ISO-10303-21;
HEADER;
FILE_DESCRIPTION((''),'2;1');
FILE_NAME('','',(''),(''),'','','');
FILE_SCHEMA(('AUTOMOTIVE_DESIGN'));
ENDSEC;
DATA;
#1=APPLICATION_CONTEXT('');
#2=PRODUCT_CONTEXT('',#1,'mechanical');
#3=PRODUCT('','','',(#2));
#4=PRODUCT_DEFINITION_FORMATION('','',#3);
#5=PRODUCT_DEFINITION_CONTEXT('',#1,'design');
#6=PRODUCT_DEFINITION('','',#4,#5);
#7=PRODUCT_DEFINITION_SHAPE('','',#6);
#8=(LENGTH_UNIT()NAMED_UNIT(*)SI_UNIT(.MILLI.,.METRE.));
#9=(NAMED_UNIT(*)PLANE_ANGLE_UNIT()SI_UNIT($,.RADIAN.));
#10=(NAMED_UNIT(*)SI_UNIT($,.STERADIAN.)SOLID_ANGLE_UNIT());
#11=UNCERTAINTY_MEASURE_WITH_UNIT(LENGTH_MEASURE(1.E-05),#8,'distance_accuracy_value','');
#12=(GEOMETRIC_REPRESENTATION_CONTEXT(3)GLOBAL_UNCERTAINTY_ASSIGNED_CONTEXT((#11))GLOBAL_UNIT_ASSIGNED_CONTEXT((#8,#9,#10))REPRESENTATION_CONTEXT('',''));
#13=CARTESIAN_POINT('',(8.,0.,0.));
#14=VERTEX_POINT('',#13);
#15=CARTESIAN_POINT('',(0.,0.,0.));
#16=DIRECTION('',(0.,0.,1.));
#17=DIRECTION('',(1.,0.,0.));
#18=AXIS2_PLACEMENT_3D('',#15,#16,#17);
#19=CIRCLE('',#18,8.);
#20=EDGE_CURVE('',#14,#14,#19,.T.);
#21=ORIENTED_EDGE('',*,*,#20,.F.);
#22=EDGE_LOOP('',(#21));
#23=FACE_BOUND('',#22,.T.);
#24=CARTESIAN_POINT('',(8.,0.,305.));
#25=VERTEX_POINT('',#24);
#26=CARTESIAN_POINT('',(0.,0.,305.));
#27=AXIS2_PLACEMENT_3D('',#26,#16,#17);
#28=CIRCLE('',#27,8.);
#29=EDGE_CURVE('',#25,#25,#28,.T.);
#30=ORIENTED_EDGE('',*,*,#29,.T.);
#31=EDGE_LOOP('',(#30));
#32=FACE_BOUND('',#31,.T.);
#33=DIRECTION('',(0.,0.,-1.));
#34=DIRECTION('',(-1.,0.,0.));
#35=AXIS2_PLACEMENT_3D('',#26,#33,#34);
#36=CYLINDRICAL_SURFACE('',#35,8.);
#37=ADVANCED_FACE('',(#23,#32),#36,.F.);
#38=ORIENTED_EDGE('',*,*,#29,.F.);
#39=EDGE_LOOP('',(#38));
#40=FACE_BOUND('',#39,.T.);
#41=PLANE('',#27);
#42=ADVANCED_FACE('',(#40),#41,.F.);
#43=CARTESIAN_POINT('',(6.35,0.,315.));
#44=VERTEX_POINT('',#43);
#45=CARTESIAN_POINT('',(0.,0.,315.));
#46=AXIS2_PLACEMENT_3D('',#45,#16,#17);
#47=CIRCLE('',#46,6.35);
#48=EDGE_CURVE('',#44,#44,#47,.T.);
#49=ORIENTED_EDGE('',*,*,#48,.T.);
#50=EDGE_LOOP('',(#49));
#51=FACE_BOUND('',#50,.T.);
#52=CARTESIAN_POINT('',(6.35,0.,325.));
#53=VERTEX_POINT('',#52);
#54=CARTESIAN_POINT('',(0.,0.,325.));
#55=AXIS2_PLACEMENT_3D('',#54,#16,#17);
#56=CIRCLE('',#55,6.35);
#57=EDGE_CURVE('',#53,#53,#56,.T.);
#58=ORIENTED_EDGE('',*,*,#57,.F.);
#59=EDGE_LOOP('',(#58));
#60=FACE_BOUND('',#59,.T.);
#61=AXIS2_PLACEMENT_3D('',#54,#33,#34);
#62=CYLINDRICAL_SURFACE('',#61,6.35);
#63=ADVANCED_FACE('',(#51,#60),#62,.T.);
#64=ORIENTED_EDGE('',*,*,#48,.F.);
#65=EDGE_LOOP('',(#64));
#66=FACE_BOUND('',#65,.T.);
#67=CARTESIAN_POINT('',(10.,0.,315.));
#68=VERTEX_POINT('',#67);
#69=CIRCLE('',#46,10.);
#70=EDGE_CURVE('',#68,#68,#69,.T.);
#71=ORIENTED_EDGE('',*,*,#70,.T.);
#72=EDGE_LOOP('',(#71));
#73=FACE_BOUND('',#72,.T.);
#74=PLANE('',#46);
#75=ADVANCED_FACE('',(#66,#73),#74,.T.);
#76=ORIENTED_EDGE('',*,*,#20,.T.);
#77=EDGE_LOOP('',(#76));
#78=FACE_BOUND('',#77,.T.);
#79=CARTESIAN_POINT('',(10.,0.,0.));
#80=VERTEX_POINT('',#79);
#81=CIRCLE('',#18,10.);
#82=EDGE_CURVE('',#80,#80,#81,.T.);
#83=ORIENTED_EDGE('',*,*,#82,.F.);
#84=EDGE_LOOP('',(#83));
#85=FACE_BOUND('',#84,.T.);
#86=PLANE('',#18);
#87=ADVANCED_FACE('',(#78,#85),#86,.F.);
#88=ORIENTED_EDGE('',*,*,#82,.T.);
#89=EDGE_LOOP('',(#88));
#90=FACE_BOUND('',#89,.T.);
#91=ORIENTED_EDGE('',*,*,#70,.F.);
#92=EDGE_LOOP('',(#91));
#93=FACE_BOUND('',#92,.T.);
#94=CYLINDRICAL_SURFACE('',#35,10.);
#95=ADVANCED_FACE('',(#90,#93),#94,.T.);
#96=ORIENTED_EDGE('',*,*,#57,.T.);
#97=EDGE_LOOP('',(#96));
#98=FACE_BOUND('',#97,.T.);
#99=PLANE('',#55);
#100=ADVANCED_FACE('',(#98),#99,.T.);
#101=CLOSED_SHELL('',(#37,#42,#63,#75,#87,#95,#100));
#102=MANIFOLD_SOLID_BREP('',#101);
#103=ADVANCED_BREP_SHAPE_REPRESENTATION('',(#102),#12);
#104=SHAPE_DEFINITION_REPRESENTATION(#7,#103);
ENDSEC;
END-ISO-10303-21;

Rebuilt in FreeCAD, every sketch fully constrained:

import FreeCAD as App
import Part
import Sketcher
Q = App.Units.Quantity

doc = App.newDocument("Part")
body = doc.addObject("PartDesign::Body", "Body")

sketch1 = body.newObject("Sketcher::SketchObject", "Sketch")
sketch1.AttachmentSupport = (doc.getObject("XY_Plane"), [""])
sketch1.MapMode = "FlatFace"
sketch1.addGeometry([
    Part.Circle(App.Vector(0, 0, 0), App.Vector(0, 0, 1), 10),
    Part.Circle(App.Vector(0, 0, 0), App.Vector(0, 0, 1), 8),
], False)
sketch1.addConstraint([
    Sketcher.Constraint("Coincident", 0, 3, -1, 1),
    Sketcher.Constraint("Coincident", 1, 3, -1, 1),
    Sketcher.Constraint("Diameter", 0, Q("20 mm")),
    Sketcher.Constraint("Diameter", 1, Q("16 mm")),
])
pad1 = body.newObject("PartDesign::Pad", "Pad")
pad1.Profile = sketch1
pad1.Length = 305

sketch2 = body.newObject("Sketcher::SketchObject", "Sketch001")
sketch2.AttachmentSupport = (doc.getObject("XY_Plane"), [""])
sketch2.MapMode = "FlatFace"
sketch2.AttachmentOffset = App.Placement(App.Vector(0, 0, 305), App.Rotation())
sketch2.addGeometry(Part.Circle(App.Vector(0, 0, 0), App.Vector(0, 0, 1), 10), False)
sketch2.addConstraint([
    Sketcher.Constraint("Coincident", 0, 3, -1, 1),
    Sketcher.Constraint("Diameter", 0, Q("20 mm")),
])
pad2 = body.newObject("PartDesign::Pad", "Pad001")
pad2.Profile = sketch2
pad2.Length = 10

sketch3 = body.newObject("Sketcher::SketchObject", "Sketch002")
sketch3.AttachmentSupport = (doc.getObject("XY_Plane"), [""])
sketch3.MapMode = "FlatFace"
sketch3.AttachmentOffset = App.Placement(App.Vector(0, 0, 315), App.Rotation())
sketch3.addGeometry(Part.Circle(App.Vector(0, 0, 0), App.Vector(0, 0, 1), 6), False)
sketch3.addConstraint([
    Sketcher.Constraint("Coincident", 0, 3, -1, 1),
    Sketcher.Constraint("Diameter", 0, Q("12.7 mm")),
])
pad3 = body.newObject("PartDesign::Pad", "Pad002")
pad3.Profile = sketch3
pad3.Length = 10

doc.recompute()
